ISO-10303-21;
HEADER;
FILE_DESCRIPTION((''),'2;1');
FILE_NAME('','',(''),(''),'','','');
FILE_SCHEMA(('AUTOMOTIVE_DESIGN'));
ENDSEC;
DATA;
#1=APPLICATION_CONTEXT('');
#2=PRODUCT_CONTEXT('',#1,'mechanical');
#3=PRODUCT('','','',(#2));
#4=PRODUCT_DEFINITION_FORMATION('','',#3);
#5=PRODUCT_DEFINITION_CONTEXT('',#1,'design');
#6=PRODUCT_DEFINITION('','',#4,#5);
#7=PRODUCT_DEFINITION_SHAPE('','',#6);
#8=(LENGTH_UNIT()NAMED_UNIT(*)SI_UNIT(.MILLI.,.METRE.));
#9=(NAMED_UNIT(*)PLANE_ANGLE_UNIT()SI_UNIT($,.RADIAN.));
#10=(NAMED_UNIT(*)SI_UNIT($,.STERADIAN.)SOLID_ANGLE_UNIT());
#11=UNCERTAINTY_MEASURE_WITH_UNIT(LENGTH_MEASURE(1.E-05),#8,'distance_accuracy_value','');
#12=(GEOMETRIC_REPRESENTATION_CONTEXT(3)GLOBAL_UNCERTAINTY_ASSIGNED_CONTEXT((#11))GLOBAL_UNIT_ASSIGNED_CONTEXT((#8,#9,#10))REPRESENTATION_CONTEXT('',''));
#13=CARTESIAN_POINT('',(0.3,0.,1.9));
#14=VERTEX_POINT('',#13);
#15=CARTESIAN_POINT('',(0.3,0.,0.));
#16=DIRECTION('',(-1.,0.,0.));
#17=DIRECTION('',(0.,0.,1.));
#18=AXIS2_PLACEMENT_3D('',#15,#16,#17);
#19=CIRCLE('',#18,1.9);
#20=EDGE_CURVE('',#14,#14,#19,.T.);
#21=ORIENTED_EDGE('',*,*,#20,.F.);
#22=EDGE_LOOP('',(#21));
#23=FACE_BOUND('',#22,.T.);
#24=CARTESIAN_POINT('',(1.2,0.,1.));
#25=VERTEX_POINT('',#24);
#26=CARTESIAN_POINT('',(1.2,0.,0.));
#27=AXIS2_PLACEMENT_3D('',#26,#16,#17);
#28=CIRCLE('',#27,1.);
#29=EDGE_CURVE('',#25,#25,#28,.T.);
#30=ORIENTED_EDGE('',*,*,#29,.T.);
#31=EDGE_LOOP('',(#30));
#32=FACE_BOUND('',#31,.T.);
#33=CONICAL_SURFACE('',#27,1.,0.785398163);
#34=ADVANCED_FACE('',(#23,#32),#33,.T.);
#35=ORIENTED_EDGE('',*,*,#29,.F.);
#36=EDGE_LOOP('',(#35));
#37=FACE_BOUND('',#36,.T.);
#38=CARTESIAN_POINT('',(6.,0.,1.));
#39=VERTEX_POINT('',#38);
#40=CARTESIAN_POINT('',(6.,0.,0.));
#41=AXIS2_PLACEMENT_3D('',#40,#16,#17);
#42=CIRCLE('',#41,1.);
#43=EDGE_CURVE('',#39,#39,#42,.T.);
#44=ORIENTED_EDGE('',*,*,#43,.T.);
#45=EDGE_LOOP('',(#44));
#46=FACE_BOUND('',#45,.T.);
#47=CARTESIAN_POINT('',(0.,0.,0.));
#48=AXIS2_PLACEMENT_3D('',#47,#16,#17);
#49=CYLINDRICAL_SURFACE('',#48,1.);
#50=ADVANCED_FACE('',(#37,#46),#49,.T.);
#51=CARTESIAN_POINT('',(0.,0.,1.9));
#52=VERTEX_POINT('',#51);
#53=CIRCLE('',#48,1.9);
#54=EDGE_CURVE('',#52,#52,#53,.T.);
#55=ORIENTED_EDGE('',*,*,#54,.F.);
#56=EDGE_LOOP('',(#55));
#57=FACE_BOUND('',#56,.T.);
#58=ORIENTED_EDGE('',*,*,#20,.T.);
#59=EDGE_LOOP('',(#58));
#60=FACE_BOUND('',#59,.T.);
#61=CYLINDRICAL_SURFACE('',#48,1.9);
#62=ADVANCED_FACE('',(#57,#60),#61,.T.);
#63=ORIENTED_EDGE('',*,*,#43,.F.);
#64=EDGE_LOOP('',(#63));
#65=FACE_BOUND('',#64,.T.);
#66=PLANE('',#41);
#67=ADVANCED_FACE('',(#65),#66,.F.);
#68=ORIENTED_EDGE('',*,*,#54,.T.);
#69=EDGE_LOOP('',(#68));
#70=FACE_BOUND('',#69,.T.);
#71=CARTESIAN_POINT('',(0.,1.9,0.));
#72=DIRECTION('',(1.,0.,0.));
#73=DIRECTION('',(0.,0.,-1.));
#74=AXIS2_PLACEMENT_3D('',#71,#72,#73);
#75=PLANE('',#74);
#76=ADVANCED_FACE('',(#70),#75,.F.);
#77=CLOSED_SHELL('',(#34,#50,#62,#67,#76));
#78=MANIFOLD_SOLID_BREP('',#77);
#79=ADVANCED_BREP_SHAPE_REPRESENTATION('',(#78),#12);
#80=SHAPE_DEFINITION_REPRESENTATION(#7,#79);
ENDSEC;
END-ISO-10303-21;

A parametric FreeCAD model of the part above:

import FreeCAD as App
import Part
import Sketcher
from FreeCAD import Vector
Q = App.Units.Quantity

doc = App.newDocument("Part")
body = doc.addObject("PartDesign::Body", "Body")

# Sketch on XY plane
sketch1 = doc.addObject("Sketcher::SketchObject", "Sketch")
body.addObject(sketch1)
sketch1.AttachmentSupport = (doc.XY_Plane, [""])
sketch1.MapMode = "FlatFace"
sketch1.addGeometry([
    Part.LineSegment(Vector(0, 0, 0), Vector(6, 0, 0)),  # 0
    Part.LineSegment(Vector(6, 0, 0), Vector(6, 1, 0)),  # 1
    Part.LineSegment(Vector(6, 1, 0), Vector(1.2, 1, 0)),  # 2
    Part.LineSegment(Vector(1.2, 1, 0), Vector(0.3, 1.9, 0)),  # 3
    Part.LineSegment(Vector(0.3, 1.9, 0), Vector(0, 1.9, 0)),  # 4
    Part.LineSegment(Vector(0, 1.9, 0), Vector(0, 0, 0)),  # 5
], False)
sketch1.addConstraint([
    Sketcher.Constraint("Coincident", 0, 2, 1, 1),
    Sketcher.Constraint("Coincident", 1, 2, 2, 1),
    Sketcher.Constraint("Coincident", 2, 2, 3, 1),
    Sketcher.Constraint("Coincident", 3, 2, 4, 1),
    Sketcher.Constraint("Coincident", 4, 2, 5, 1),
    Sketcher.Constraint("Coincident", 5, 2, 0, 1),
    Sketcher.Constraint("Horizontal", 0),
    Sketcher.Constraint("Vertical", 1),
    Sketcher.Constraint("Horizontal", 2),
    Sketcher.Constraint("Horizontal", 4),
    Sketcher.Constraint("Vertical", 5),
    Sketcher.Constraint("Coincident", 5, 2, -1, 1),
    Sketcher.Constraint("DistanceX", 0, 1, 0, 2, 6.0),
    Sketcher.Constraint("DistanceY", 1, 1, 1, 2, 1.0),
    Sketcher.Constraint("Angle", 3, Q("135 deg")),
    Sketcher.Constraint("DistanceX", 2, 2, 2, 1, 4.8),
    Sketcher.Constraint("DistanceX", 4, 2, 4, 1, 0.3),
])
revolution = doc.addObject("PartDesign::Revolution", "Revolution")
body.addObject(revolution)
revolution.Profile = sketch1
revolution.ReferenceAxis = (sketch1, ["H_Axis"])
revolution.Angle = 360

doc.recompute()
